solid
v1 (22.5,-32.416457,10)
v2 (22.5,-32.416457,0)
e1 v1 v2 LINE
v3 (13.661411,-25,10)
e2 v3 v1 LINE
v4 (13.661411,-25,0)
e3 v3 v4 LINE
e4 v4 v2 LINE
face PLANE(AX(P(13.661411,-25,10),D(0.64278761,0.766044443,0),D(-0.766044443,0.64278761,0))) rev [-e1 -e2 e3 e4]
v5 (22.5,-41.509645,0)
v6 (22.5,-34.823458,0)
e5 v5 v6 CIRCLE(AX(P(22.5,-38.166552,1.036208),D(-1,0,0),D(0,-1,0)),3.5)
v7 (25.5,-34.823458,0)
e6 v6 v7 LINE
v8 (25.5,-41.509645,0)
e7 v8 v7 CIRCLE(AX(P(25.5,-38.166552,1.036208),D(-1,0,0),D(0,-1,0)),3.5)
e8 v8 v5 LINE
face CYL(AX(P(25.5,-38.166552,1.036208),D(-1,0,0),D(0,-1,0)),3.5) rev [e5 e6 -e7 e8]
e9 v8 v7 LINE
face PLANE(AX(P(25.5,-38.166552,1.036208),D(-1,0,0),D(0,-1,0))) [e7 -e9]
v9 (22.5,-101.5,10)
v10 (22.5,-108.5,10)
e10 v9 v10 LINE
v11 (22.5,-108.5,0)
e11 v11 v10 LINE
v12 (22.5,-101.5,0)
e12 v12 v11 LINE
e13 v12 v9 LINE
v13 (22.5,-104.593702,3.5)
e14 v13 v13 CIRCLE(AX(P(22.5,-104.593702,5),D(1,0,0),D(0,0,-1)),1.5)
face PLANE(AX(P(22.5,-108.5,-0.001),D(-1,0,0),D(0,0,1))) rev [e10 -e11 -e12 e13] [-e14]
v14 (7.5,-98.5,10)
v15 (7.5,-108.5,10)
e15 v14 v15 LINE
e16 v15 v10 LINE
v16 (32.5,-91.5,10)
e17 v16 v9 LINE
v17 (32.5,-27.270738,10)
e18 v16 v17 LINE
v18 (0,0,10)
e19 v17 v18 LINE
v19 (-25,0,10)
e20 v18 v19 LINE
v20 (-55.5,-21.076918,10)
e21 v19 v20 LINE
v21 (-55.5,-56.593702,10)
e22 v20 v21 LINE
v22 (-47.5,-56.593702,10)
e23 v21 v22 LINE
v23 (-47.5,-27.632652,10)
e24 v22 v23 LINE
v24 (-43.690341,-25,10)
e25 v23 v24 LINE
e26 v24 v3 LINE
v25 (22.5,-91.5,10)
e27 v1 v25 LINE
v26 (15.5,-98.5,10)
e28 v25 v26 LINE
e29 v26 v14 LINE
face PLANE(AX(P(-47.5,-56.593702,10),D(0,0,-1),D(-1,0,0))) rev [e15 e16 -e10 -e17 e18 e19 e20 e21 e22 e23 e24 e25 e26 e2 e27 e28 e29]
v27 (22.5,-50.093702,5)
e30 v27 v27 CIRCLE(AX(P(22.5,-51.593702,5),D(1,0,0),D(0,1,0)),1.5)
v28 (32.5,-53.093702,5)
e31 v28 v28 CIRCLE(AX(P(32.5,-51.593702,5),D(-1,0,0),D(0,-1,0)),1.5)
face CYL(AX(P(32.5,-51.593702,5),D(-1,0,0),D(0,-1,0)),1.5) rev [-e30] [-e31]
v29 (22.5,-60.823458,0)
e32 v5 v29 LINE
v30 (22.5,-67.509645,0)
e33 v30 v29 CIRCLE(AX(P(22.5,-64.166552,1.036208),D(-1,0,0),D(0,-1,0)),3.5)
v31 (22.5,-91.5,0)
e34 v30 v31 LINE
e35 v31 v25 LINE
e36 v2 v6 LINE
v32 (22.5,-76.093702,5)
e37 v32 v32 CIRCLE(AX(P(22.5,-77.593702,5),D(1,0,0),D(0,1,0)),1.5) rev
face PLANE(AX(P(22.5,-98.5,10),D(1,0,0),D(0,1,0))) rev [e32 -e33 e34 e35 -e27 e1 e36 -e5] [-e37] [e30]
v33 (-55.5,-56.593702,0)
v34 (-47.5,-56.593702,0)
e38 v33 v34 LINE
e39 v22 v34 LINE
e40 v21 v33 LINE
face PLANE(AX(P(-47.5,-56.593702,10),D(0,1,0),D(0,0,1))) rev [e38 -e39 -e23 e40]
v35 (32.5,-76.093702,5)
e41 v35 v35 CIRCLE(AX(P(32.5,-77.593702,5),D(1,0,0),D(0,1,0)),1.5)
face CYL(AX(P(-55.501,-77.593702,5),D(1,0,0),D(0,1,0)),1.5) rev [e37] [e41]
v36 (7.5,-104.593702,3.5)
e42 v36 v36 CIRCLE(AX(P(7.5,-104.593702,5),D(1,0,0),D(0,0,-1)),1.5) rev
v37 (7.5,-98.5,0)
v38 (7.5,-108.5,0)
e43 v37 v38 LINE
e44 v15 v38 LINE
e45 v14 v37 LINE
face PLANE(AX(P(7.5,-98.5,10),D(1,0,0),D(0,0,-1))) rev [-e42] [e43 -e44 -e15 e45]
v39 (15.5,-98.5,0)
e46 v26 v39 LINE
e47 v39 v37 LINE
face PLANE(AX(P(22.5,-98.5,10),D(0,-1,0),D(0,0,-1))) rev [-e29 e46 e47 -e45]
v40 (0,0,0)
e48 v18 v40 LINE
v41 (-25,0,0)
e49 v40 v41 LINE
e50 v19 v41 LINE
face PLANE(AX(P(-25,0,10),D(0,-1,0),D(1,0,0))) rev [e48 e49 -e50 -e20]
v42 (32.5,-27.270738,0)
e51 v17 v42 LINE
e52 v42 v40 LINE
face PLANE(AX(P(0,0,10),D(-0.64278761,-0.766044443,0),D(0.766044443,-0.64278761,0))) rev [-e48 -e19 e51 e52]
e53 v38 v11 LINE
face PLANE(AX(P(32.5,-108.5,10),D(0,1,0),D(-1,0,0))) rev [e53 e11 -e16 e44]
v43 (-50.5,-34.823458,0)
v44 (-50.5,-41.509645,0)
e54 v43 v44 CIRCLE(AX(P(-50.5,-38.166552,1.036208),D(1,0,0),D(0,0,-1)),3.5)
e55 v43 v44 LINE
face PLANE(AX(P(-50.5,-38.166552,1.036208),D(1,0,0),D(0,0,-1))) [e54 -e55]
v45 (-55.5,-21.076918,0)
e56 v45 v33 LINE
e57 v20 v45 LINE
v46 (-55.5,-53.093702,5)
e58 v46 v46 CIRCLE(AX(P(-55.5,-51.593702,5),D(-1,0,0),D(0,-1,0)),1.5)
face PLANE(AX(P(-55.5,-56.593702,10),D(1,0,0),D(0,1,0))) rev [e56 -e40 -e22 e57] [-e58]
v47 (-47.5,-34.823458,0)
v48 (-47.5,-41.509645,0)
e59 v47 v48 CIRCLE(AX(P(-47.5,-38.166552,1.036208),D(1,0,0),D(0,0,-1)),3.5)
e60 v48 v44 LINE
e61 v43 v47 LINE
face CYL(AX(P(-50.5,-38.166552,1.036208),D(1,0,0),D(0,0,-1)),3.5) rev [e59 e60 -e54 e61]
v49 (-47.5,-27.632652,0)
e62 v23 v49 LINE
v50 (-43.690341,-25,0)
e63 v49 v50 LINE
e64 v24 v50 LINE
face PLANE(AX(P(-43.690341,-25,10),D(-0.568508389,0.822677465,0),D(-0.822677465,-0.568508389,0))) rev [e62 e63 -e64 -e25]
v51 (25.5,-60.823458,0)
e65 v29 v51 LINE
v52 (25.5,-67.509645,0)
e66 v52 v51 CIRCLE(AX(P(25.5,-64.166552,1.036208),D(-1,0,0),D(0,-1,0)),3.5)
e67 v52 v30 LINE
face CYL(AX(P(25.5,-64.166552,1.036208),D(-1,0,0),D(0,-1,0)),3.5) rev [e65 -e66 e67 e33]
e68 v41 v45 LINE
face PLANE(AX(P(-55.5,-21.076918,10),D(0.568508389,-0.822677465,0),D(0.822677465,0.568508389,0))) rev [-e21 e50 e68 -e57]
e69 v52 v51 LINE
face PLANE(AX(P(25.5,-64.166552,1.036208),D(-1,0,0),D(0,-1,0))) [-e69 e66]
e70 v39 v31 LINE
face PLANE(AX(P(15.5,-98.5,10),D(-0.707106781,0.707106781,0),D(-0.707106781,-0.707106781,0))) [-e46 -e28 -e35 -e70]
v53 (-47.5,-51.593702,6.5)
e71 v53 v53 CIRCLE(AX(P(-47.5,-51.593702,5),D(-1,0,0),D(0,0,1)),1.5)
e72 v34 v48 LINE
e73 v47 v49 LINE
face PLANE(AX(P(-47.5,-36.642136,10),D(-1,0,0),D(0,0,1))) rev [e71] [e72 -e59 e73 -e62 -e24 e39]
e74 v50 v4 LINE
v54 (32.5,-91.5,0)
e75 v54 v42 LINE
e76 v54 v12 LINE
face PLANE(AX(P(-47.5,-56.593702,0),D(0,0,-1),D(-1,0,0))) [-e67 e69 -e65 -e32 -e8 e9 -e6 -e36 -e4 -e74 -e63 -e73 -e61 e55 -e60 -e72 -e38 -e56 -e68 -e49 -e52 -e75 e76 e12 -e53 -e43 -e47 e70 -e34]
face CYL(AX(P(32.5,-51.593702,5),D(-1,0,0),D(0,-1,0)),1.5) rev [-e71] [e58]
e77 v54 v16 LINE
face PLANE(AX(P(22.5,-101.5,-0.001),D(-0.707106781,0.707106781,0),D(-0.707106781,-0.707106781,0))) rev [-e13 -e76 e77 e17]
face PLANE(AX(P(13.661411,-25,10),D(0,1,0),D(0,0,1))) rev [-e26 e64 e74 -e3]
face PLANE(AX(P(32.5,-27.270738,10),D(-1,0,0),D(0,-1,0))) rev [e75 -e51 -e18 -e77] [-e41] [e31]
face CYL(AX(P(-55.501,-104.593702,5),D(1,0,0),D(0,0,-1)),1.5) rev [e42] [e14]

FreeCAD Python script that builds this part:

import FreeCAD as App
import Part
import Sketcher
from FreeCAD import Vector
Q = App.Units.Quantity


def edges_at(feature, points):
    """Names of the edges that pass closest to the given points."""
    edges = feature.Shape.Edges
    near = lambda p: min(range(len(edges)), key=lambda i: edges[i].distToShape(Part.Vertex(*p))[0])
    return sorted({f"Edge{near(p) + 1}" for p in points})

doc = App.newDocument("Part")
body = doc.addObject("PartDesign::Body", "Body")

# Sketch on XY plane
sketch1 = doc.addObject("Sketcher::SketchObject", "Sketch")
body.addObject(sketch1)
sketch1.AttachmentSupport = (doc.XY_Plane, [""])
sketch1.MapMode = "FlatFace"
sketch1.addGeometry([
    Part.LineSegment(Vector(-47.5, -56.6, 0), Vector(-47.5, -27.6, 0)),  # 0
    Part.LineSegment(Vector(-47.5, -27.6, 0), Vector(-43.7, -25, 0)),  # 1
    Part.LineSegment(Vector(-43.7, -25, 0), Vector(13.7, -25, 0)),  # 2
    Part.LineSegment(Vector(13.7, -25, 0), Vector(22.5, -32.4, 0)),  # 3
    Part.LineSegment(Vector(22.5, -32.4, 0), Vector(22.5, -98.5, 0)),  # 4
    Part.LineSegment(Vector(22.5, -98.5, 0), Vector(7.5, -98.5, 0)),  # 5
    Part.LineSegment(Vector(7.5, -98.5, 0), Vector(7.5, -108.5, 0)),  # 6
    Part.LineSegment(Vector(7.5, -108.5, 0), Vector(32.5, -108.5, 0)),  # 7
    Part.LineSegment(Vector(32.5, -108.5, 0), Vector(32.5, -27.3, 0)),  # 8
    Part.LineSegment(Vector(32.5, -27.3, 0), Vector(0, 0, 0)),  # 9
    Part.LineSegment(Vector(0, 0, 0), Vector(-25, 0, 0)),  # 10
    Part.LineSegment(Vector(-25, 0, 0), Vector(-55.5, -21.1, 0)),  # 11
    Part.LineSegment(Vector(-55.5, -21.1, 0), Vector(-55.5, -56.6, 0)),  # 12
    Part.LineSegment(Vector(-55.5, -56.6, 0), Vector(-47.5, -56.6, 0)),  # 13
], False)
sketch1.addConstraint([
    Sketcher.Constraint("Coincident", 0, 2, 1, 1),
    Sketcher.Constraint("Coincident", 1, 2, 2, 1),
    Sketcher.Constraint("Coincident", 2, 2, 3, 1),
    Sketcher.Constraint("Coincident", 3, 2, 4, 1),
    Sketcher.Constraint("Coincident", 4, 2, 5, 1),
    Sketcher.Constraint("Coincident", 5, 2, 6, 1),
    Sketcher.Constraint("Coincident", 6, 2, 7, 1),
    Sketcher.Constraint("Coincident", 7, 2, 8, 1),
    Sketcher.Constraint("Coincident", 8, 2, 9, 1),
    Sketcher.Constraint("Coincident", 9, 2, 10, 1),
    Sketcher.Constraint("Coincident", 10, 2, 11, 1),
    Sketcher.Constraint("Coincident", 11, 2, 12, 1),
    Sketcher.Constraint("Coincident", 12, 2, 13, 1),
    Sketcher.Constraint("Coincident", 13, 2, 0, 1),
    Sketcher.Constraint("Vertical", 0),
    Sketcher.Constraint("Horizontal", 2),
    Sketcher.Constraint("Vertical", 4),
    Sketcher.Constraint("Horizontal", 5),
    Sketcher.Constraint("Vertical", 6),
    Sketcher.Constraint("Horizontal", 7),
    Sketcher.Constraint("Vertical", 8),
    Sketcher.Constraint("Horizontal", 10),
    Sketcher.Constraint("Vertical", 12),
    Sketcher.Constraint("Horizontal", 13),
    Sketcher.Constraint("Coincident", 9, 2, -1, 1),
    Sketcher.Constraint("Parallel", 3, 9),
    Sketcher.Constraint("Parallel", 1, 11),
    Sketcher.Constraint("Equal", 7, 10),
    Sketcher.Constraint("DistanceX", 5, 2, 5, 1, 15.0),
    Sketcher.Constraint("DistanceX", 7, 1, 7, 2, 25.0),
    Sketcher.Constraint("DistanceX", 13, 1, 13, 2, 8.0),
    Sketcher.Constraint("DistanceY", 6, 2, 6, 1, 10.0),
    Sketcher.Constraint("Angle", 3, Q("-40 deg")),
    Sketcher.Constraint("DistanceY", 1, 2, -1, 1, 25.0),
    Sketcher.Constraint("DistanceX", 0, 2, 3, 2, 70.0),
    Sketcher.Constraint("DistanceX", 0, 2, -1, 1, 47.5),
    Sketcher.Constraint("DistanceY", 4, 2, -1, 1, 98.5),
    Sketcher.Constraint("DistanceX", 2, 1, 2, 2, 57.351752),
    Sketcher.Constraint("DistanceY", 0, 1, 0, 2, 28.96105),
    Sketcher.Constraint("DistanceY", 12, 2, -1, 1, 56.593702),
    Sketcher.Constraint("Distance", 3, 11.537959),
])
pad1 = doc.addObject("PartDesign::Pad", "Pad")
body.addObject(pad1)
pad1.Profile = sketch1
pad1.Length = 10

# Sketch on YZ plane
sketch2 = doc.addObject("Sketcher::SketchObject", "Sketch001")
body.addObject(sketch2)
sketch2.AttachmentSupport = (doc.YZ_Plane, [""])
sketch2.MapMode = "FlatFace"
sketch2.AttachmentOffset = App.Placement(Vector(0, 0, -55.5), App.Rotation())
sketch2.addGeometry(Part.Circle(Vector(-51.6, 5, 0), Vector(0, 0, 1), 1.5), False)
sketch2.addConstraint([
    Sketcher.Constraint("Diameter", 0, 3.0),
    Sketcher.Constraint("DistanceY", -1, 1, 0, 3, 5.0),
    Sketcher.Constraint("DistanceX", 0, 3, -1, 1, 51.593702),
])
pocket1 = doc.addObject("PartDesign::Pocket", "Pocket")
body.addObject(pocket1)
pocket1.Profile = sketch2
pocket1.Type = "ThroughAll"
pocket1.Reversed = True

# Sketch on YZ plane
sketch3 = doc.addObject("Sketcher::SketchObject", "Sketch002")
body.addObject(sketch3)
sketch3.AttachmentSupport = (doc.YZ_Plane, [""])
sketch3.MapMode = "FlatFace"
sketch3.AttachmentOffset = App.Placement(Vector(0, 0, 32.5), App.Rotation())
sketch3.addGeometry(Part.Circle(Vector(-77.6, 5, 0), Vector(0, 0, 1), 1.5), False)
sketch3.addConstraint([
    Sketcher.Constraint("Diameter", 0, 3.0),
    Sketcher.Constraint("DistanceY", -1, 1, 0, 3, 5.0),
    Sketcher.Constraint("DistanceX", 0, 3, -1, 1, 77.593702),
])
pocket2 = doc.addObject("PartDesign::Pocket", "Pocket001")
body.addObject(pocket2)
pocket2.Profile = sketch3
pocket2.Type = "UpToFirst"
doc.recompute()

chamfer = doc.addObject("PartDesign::Chamfer", "Chamfer")
body.addObject(chamfer)
chamfer.Base = (pocket2, edges_at(pocket2, [(22.5, -98.5, 5)]))
chamfer.Size = 7

# Sketch on XY plane
sketch4 = doc.addObject("Sketcher::SketchObject", "Sketch003")
body.addObject(sketch4)
sketch4.AttachmentSupport = (doc.XY_Plane, [""])
sketch4.MapMode = "FlatFace"
sketch4.AttachmentOffset = App.Placement(Vector(0, 0, 10), App.Rotation())
sketch4.addGeometry([
    Part.LineSegment(Vector(22, -102, 0), Vector(22, -108, 0)),
    Part.LineSegment(Vector(22, -108, 0), Vector(32, -108, 0)),
    Part.LineSegment(Vector(32, -108, 0), Vector(32, -92, 0)),
    Part.LineSegment(Vector(32, -92, 0), Vector(22, -102, 0)),
], False)
sketch4.addConstraint([
    Sketcher.Constraint("Coincident", 0, 2, 1, 1),
    Sketcher.Constraint("Coincident", 1, 2, 2, 1),
    Sketcher.Constraint("Coincident", 2, 2, 3, 1),
    Sketcher.Constraint("Coincident", 3, 2, 0, 1),
    Sketcher.Constraint("Vertical", 0),
    Sketcher.Constraint("Horizontal", 1),
    Sketcher.Constraint("Vertical", 2),
    Sketcher.Constraint("DistanceX", 1, 1, 1, 2, 10.0),
    Sketcher.Constraint("DistanceY", 0, 2, 0, 1, 7.0),
    Sketcher.Constraint("DistanceY", 2, 1, 2, 2, 17.0),
    Sketcher.Constraint("DistanceX", -1, 1, 0, 2, 22.5),
    Sketcher.Constraint("DistanceY", 0, 2, -1, 1, 108.5),
])
pocket3 = doc.addObject("PartDesign::Pocket", "Pocket002")
body.addObject(pocket3)
pocket3.Profile = sketch4
pocket3.Type = "UpToFirst"

# Sketch on YZ plane
sketch5 = doc.addObject("Sketcher::SketchObject", "Sketch004")
body.addObject(sketch5)
sketch5.AttachmentSupport = (doc.YZ_Plane, [""])
sketch5.MapMode = "FlatFace"
sketch5.AttachmentOffset = App.Placement(Vector(0, 0, 22.5), App.Rotation())
sketch5.addGeometry(Part.Circle(Vector(-104.6, 5, 0), Vector(0, 0, 1), 1.5), False)
sketch5.addConstraint([
    Sketcher.Constraint("Diameter", 0, 3.0),
    Sketcher.Constraint("DistanceY", -1, 1, 0, 3, 5.0),
    Sketcher.Constraint("DistanceX", 0, 3, -1, 1, 104.593702),
])
pocket4 = doc.addObject("PartDesign::Pocket", "Pocket003")
body.addObject(pocket4)
pocket4.Profile = sketch5
pocket4.Type = "UpToFirst"

# Sketch on YZ plane
sketch6 = doc.addObject("Sketcher::SketchObject", "Sketch005")
body.addObject(sketch6)
sketch6.AttachmentSupport = (doc.YZ_Plane, [""])
sketch6.MapMode = "FlatFace"
sketch6.AttachmentOffset = App.Placement(Vector(0, 0, -47.5), App.Rotation())
sketch6.addGeometry(Part.Circle(Vector(-38.2, 1, 0), Vector(0, 0, 1), 3.5), False)
sketch6.addConstraint([
    Sketcher.Constraint("Diameter", 0, 7.0),
    Sketcher.Constraint("DistanceX", 0, 3, -1, 1, 38.166552),
    Sketcher.Constraint("DistanceY", -1, 1, 0, 3, 1.036208),
])
pocket5 = doc.addObject("PartDesign::Pocket", "Pocket004")
body.addObject(pocket5)
pocket5.Profile = sketch6
pocket5.Length = 3

# Sketch on YZ plane
sketch7 = doc.addObject("Sketcher::SketchObject", "Sketch006")
body.addObject(sketch7)
sketch7.AttachmentSupport = (doc.YZ_Plane, [""])
sketch7.MapMode = "FlatFace"
sketch7.AttachmentOffset = App.Placement(Vector(0, 0, 25.5), App.Rotation())
sketch7.addGeometry([
    Part.Circle(Vector(-38.2, 1, 0), Vector(0, 0, 1), 3.5),
    Part.Circle(Vector(-64.2, 1, 0), Vector(0, 0, 1), 3.5),
], False)
sketch7.addConstraint([
    Sketcher.Constraint("Equal", 0, 1),
    Sketcher.Constraint("Horizontal", 0, 3, 1, 3),
    Sketcher.Constraint("Diameter", 0, 7.0),
    Sketcher.Constraint("DistanceX", 1, 3, 0, 3, 26.0),
    Sketcher.Constraint("DistanceX", 0, 3, -1, 1, 38.166552),
    Sketcher.Constraint("DistanceY", -1, 1, 0, 3, 1.036208),
])
pocket6 = doc.addObject("PartDesign::Pocket", "Pocket005")
body.addObject(pocket6)
pocket6.Profile = sketch7
pocket6.Length = 3

doc.recompute()
